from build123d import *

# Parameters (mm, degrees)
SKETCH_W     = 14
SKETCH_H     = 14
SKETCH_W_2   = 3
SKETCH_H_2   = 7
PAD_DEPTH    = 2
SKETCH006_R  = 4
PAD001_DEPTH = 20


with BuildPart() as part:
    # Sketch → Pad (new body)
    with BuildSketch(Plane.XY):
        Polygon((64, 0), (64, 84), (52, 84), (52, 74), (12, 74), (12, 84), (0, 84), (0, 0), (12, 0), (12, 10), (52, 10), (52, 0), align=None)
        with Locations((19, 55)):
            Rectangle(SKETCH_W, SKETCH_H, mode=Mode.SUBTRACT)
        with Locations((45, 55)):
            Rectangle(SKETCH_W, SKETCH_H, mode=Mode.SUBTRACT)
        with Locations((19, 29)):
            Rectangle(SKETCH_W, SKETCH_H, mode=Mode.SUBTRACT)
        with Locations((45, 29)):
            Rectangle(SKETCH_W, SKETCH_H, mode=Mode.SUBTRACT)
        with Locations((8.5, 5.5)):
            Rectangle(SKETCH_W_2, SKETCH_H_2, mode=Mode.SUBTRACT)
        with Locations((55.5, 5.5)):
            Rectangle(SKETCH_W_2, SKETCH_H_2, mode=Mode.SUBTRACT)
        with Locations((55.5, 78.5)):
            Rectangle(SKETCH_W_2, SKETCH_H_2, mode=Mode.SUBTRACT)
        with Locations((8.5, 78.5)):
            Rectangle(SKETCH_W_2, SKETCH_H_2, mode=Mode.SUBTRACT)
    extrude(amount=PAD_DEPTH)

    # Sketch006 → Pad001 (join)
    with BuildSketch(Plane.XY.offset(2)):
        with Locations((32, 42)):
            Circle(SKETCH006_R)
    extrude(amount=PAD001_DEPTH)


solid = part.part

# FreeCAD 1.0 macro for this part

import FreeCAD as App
import Part
import Sketcher

V = App.Vector
Q = App.Units.Quantity


def add_polygon(sketch, points):
    """Adds a closed chain of lines whose ends are joined by coincident constraints."""
    first, n = sketch.GeometryCount, len(points)
    for a, b in zip(points, points[1:] + points[:1]):
        sketch.addGeometry(Part.LineSegment(App.Vector(*a, 0), App.Vector(*b, 0)), False)
    for i in range(n):
        sketch.addConstraint(Sketcher.Constraint("Coincident", first + i, 2, first + (i + 1) % n, 1))

doc = App.newDocument("Part")
body = doc.addObject("PartDesign::Body", "Body")

sketch1 = doc.addObject("Sketcher::SketchObject", "Sketch")
body.addObject(sketch1)
sketch1.AttachmentSupport = (doc.XY_Plane, [""])
sketch1.MapMode = "FlatFace"
add_polygon(sketch1, [(64, 0), (64, 84), (52, 84), (52, 74), (12, 74), (12, 84), (0, 84), (0, 0), (12, 0), (12, 10), (52, 10), (52, 0)])
add_polygon(sketch1, [(10, 2), (7, 2), (7, 9), (10, 9)])
add_polygon(sketch1, [(26, 22), (12, 22), (12, 36), (26, 36)])
add_polygon(sketch1, [(57, 2), (54, 2), (54, 9), (57, 9)])
add_polygon(sketch1, [(52, 22), (38, 22), (38, 36), (52, 36)])
add_polygon(sketch1, [(26, 48), (12, 48), (12, 62), (26, 62)])
add_polygon(sketch1, [(10, 75), (7, 75), (7, 82), (10, 82)])
add_polygon(sketch1, [(52, 48), (38, 48), (38, 62), (52, 62)])
add_polygon(sketch1, [(57, 75), (54, 75), (54, 82), (57, 82)])
sketch1.addConstraint([
    Sketcher.Constraint("Vertical", 0),
    Sketcher.Constraint("Horizontal", 1),
    Sketcher.Constraint("Vertical", 2),
    Sketcher.Constraint("Horizontal", 3),
    Sketcher.Constraint("Vertical", 4),
    Sketcher.Constraint("Horizontal", 5),
    Sketcher.Constraint("Vertical", 6),
    Sketcher.Constraint("Horizontal", 7),
    Sketcher.Constraint("Vertical", 8),
    Sketcher.Constraint("Horizontal", 9),
    Sketcher.Constraint("Vertical", 10),
    Sketcher.Constraint("Horizontal", 11),
    Sketcher.Constraint("Horizontal", 12),
    Sketcher.Constraint("Vertical", 13),
    Sketcher.Constraint("Horizontal", 14),
    Sketcher.Constraint("Vertical", 15),
    Sketcher.Constraint("Horizontal", 16),
    Sketcher.Constraint("Vertical", 17),
    Sketcher.Constraint("Horizontal", 18),
    Sketcher.Constraint("Vertical", 19),
    Sketcher.Constraint("Horizontal", 20),
    Sketcher.Constraint("Vertical", 21),
    Sketcher.Constraint("Horizontal", 22),
    Sketcher.Constraint("Vertical", 23),
    Sketcher.Constraint("Horizontal", 24),
    Sketcher.Constraint("Vertical", 25),
    Sketcher.Constraint("Horizontal", 26),
    Sketcher.Constraint("Vertical", 27),
    Sketcher.Constraint("Horizontal", 28),
    Sketcher.Constraint("Vertical", 29),
    Sketcher.Constraint("Horizontal", 30),
    Sketcher.Constraint("Vertical", 31),
    Sketcher.Constraint("Horizontal", 32),
    Sketcher.Constraint("Vertical", 33),
    Sketcher.Constraint("Horizontal", 34),
    Sketcher.Constraint("Vertical", 35),
    Sketcher.Constraint("Horizontal", 36),
    Sketcher.Constraint("Vertical", 37),
    Sketcher.Constraint("Horizontal", 38),
    Sketcher.Constraint("Vertical", 39),
    Sketcher.Constraint("Horizontal", 40),
    Sketcher.Constraint("Vertical", 41),
    Sketcher.Constraint("Horizontal", 42),
    Sketcher.Constraint("Vertical", 43),
    Sketcher.Constraint("Coincident", 6, 2, -1, 1),
    Sketcher.Constraint("PointOnObject", 10, 2, -1),
    Sketcher.Constraint("Horizontal", 1, 2, 4, 2),
    Sketcher.Constraint("Horizontal", 15, 2, 20, 2),
    Sketcher.Constraint("Horizontal", 14, 2, 21, 2),
    Sketcher.Constraint("Horizontal", 19, 2, 24, 2),
    Sketcher.Constraint("Horizontal", 18, 2, 25, 2),
    Sketcher.Constraint("Horizontal", 31, 2, 36, 2),
    Sketcher.Constraint("Horizontal", 30, 2, 37, 2),
    Sketcher.Constraint("Horizontal", 35, 2, 40, 2),
    Sketcher.Constraint("Horizontal", 34, 2, 41, 2),
    Sketcher.Constraint("Vertical", 4, 2, 7, 2),
    Sketcher.Constraint("Vertical", 2, 2, 9, 2),
    Sketcher.Constraint("Vertical", 8, 2, 16, 2),
    Sketcher.Constraint("Vertical", 10, 2, 26, 2),
    Sketcher.Constraint("Vertical", 17, 2, 28, 2),
    Sketcher.Constraint("Vertical", 19, 2, 30, 2),
    Sketcher.Constraint("Vertical", 13, 2, 32, 2),
    Sketcher.Constraint("Vertical", 15, 2, 34, 2),
    Sketcher.Constraint("Vertical", 25, 2, 36, 2),
    Sketcher.Constraint("Vertical", 27, 2, 38, 2),
    Sketcher.Constraint("Vertical", 21, 2, 40, 2),
    Sketcher.Constraint("Vertical", 23, 2, 42, 2),
    Sketcher.Constraint("Equal", 1, 5),
    Sketcher.Constraint("Equal", 14, 20),
    Sketcher.Constraint("Equal", 18, 24),
    Sketcher.Constraint("Equal", 4, 8),
    Sketcher.Constraint("Equal", 38, 17),
    Sketcher.Constraint("Equal", 27, 29),
    Sketcher.Constraint("Equal", 23, 33),
    Sketcher.Constraint("DistanceX", 1, 2, 1, 1, Q("12 mm")),
    Sketcher.Constraint("DistanceX", 3, 2, 3, 1, Q("40 mm")),
    Sketcher.Constraint("DistanceX", 12, 2, 12, 1, Q("3 mm")),
    Sketcher.Constraint("DistanceX", 16, 2, 16, 1, Q("14 mm")),
    Sketcher.Constraint("DistanceY", 0, 1, 0, 2, Q("84 mm")),
    Sketcher.Constraint("DistanceY", 2, 2, 2, 1, Q("10 mm")),
    Sketcher.Constraint("DistanceY", 13, 1, 13, 2, Q("7 mm")),
    Sketcher.Constraint("DistanceX", -1, 1, 12, 2, Q("7 mm")),
    Sketcher.Constraint("DistanceY", -1, 1, 12, 2, Q("2 mm")),
    Sketcher.Constraint("DistanceY", -1, 1, 16, 2, Q("22 mm")),
    Sketcher.Constraint("DistanceX", -1, 1, 20, 2, Q("54 mm")),
    Sketcher.Constraint("DistanceY", -1, 1, 28, 2, Q("48 mm")),
    Sketcher.Constraint("DistanceY", -1, 1, 32, 2, Q("75 mm")),
])
pad1 = doc.addObject("PartDesign::Pad", "Pad")
body.addObject(pad1)
pad1.Profile = sketch1
pad1.Length = 2

sketch2 = doc.addObject("Sketcher::SketchObject", "Sketch001")
body.addObject(sketch2)
sketch2.AttachmentSupport = (doc.XY_Plane, [""])
sketch2.MapMode = "FlatFace"
sketch2.AttachmentOffset = App.Placement(V(0, 0, 2), App.Rotation())
sketch2.addGeometry(Part.Circle(V(32, 42, 0), V(0, 0, 1), 4), False)
sketch2.addConstraint([
    Sketcher.Constraint("Diameter", 0, Q("8 mm")),
    Sketcher.Constraint("DistanceX", -1, 1, 0, 3, Q("32 mm")),
    Sketcher.Constraint("DistanceY", -1, 1, 0, 3, Q("42 mm")),
])
pad2 = doc.addObject("PartDesign::Pad", "Pad001")
body.addObject(pad2)
pad2.Profile = sketch2
pad2.Length = 20

doc.recompute()
